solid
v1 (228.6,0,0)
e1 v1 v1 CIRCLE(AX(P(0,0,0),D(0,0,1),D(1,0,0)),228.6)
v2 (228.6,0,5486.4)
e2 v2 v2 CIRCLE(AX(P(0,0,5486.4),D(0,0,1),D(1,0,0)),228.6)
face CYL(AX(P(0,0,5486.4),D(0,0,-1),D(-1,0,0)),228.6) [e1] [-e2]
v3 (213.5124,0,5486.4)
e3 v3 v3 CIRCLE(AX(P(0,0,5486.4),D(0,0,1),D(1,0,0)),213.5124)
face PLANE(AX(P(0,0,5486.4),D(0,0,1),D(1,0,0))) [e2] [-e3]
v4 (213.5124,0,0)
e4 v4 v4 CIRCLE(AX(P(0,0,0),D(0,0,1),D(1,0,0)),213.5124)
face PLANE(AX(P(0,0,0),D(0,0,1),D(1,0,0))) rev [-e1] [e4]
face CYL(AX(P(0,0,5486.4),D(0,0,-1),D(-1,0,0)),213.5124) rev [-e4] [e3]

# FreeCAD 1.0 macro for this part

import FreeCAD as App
import Part
import Sketcher
Q = App.Units.Quantity

doc = App.newDocument("Part")
body = doc.addObject("PartDesign::Body", "Body")

sketch1 = body.newObject("Sketcher::SketchObject", "Sketch")
sketch1.AttachmentSupport = (doc.getObject("XY_Plane"), [""])
sketch1.MapMode = "FlatFace"
sketch1.addGeometry([
    Part.Circle(App.Vector(0, 0, 0), App.Vector(0, 0, 1), 228.6),
    Part.Circle(App.Vector(0, 0, 0), App.Vector(0, 0, 1), 213.5124),
], False)
sketch1.addConstraint([
    Sketcher.Constraint("Coincident", 0, 3, -1, 1),
    Sketcher.Constraint("Coincident", 1, 3, -1, 1),
    Sketcher.Constraint("Diameter", 0, Q("18 in")),
    Sketcher.Constraint("Diameter", 1, Q("16.812 in")),
])
pad1 = body.newObject("PartDesign::Pad", "Pad")
pad1.Profile = sketch1
pad1.Length = Q("216 in")

doc.recompute()
